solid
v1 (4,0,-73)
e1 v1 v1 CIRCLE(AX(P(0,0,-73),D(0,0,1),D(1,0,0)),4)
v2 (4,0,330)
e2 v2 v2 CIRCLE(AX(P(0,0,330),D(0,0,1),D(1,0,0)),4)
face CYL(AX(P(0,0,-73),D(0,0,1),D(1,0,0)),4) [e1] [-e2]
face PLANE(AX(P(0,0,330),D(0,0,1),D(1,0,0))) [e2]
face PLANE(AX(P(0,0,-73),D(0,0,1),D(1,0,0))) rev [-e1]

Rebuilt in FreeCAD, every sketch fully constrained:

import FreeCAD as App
import Part
import Sketcher
from FreeCAD import Vector
Q = App.Units.Quantity

doc = App.newDocument("Part")
body = doc.addObject("PartDesign::Body", "Body")

# Sketch on XY plane
sketch1 = doc.addObject("Sketcher::SketchObject", "Sketch")
body.addObject(sketch1)
sketch1.AttachmentSupport = (doc.XY_Plane, [""])
sketch1.MapMode = "FlatFace"
sketch1.addGeometry(Part.Circle(Vector(0, 0, 0), Vector(0, 0, 1), 4), False)
sketch1.addConstraint([
    Sketcher.Constraint("Coincident", 0, 3, -1, 1),
    Sketcher.Constraint("Diameter", 0, Q("8 mm")),
])
pad1 = doc.addObject("PartDesign::Pad", "Pad")
body.addObject(pad1)
pad1.Profile = sketch1
pad1.Type = "TwoLengths"
pad1.Length = 330
pad1.Length2 = 73

doc.recompute()
